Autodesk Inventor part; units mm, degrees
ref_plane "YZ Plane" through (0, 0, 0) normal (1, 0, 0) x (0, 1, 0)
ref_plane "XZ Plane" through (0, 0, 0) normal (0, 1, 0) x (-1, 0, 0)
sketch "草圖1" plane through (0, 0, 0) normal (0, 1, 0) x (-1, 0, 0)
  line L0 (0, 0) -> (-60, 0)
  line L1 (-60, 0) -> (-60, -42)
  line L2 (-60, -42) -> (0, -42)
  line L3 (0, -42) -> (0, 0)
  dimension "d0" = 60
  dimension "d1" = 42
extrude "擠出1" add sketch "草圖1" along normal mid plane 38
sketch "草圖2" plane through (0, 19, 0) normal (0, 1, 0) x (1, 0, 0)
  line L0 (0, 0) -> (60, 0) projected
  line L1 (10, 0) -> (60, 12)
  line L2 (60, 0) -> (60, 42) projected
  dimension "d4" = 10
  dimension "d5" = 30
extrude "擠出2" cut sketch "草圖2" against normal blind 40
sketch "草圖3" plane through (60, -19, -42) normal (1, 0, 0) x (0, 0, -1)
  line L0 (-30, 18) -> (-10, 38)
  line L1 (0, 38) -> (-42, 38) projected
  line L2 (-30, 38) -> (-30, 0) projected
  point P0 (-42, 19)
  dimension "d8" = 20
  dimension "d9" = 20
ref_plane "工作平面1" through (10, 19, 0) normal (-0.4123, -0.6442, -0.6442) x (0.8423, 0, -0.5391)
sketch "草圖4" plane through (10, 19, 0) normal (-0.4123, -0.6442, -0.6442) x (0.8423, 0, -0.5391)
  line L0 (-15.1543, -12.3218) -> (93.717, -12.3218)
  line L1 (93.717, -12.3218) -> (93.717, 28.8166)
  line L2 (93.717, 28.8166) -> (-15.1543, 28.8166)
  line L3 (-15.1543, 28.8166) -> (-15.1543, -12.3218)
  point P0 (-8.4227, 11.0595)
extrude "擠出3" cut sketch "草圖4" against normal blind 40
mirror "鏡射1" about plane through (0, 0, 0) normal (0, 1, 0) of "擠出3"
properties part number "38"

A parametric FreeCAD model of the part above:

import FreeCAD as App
import Part
import Sketcher

V = App.Vector

doc = App.newDocument("Part")
params = doc.addObject("Spreadsheet::Sheet", "Params")
for row, (alias, value) in enumerate([
    ("sketch1_width", "60 mm"),
    ("sketch1_height", "42 mm"),
    ("pad1_length", "38 mm"),
    ("sketch2_width", "50 mm"),
    ("sketch2_height", "12 mm"),
    ("pocket1_length", "40 mm"),
    ("pocket2_length", "40 mm"),
], start=1):
    params.set(f"A{row}", alias)
    params.set(f"B{row}", "=" + value)
    params.setAlias(f"B{row}", alias)

body = doc.addObject("PartDesign::Body", "Body")

sketch1 = doc.addObject("Sketcher::SketchObject", "Sketch")
body.addObject(sketch1)
sketch1.AttachmentSupport = (doc.XZ_Plane, [""])
sketch1.MapMode = "FlatFace"
sketch1.addGeometry(Part.LineSegment(V(0, -42, 0), V(0, 0, 0)), False)
sketch1.addGeometry(Part.LineSegment(V(0, 0, 0), V(60, 0, 0)), False)
sketch1.addGeometry(Part.LineSegment(V(60, 0, 0), V(60, -42, 0)), False)
sketch1.addGeometry(Part.LineSegment(V(60, -42, 0), V(0, -42, 0)), False)
sketch1.addConstraint(Sketcher.Constraint("Coincident", 0, 2, 1, 1))
sketch1.addConstraint(Sketcher.Constraint("Coincident", 1, 2, 2, 1))
sketch1.addConstraint(Sketcher.Constraint("Coincident", 2, 2, 3, 1))
sketch1.addConstraint(Sketcher.Constraint("Coincident", 3, 2, 0, 1))
sketch1.addConstraint(Sketcher.Constraint("Vertical", 0))
sketch1.addConstraint(Sketcher.Constraint("Horizontal", 1))
sketch1.addConstraint(Sketcher.Constraint("Vertical", 2))
sketch1.addConstraint(Sketcher.Constraint("Horizontal", 3))
sketch1.addConstraint(Sketcher.Constraint("Coincident", 0, 2, -1, 1))
sketch1.addConstraint(Sketcher.Constraint("DistanceX", 1, 1, 1, 2, 60.0))
sketch1.addConstraint(Sketcher.Constraint("DistanceY", 0, 1, 0, 2, 42.0))
sketch1.setExpression("Constraints[9]", "Params.sketch1_width")
sketch1.setExpression("Constraints[10]", "Params.sketch1_height")
pad1 = doc.addObject("PartDesign::Pad", "Pad")
body.addObject(pad1)
pad1.Profile = sketch1
pad1.setExpression("Length", "Params.pad1_length")
pad1.Midplane = True

sketch2 = doc.addObject("Sketcher::SketchObject", "Sketch001")
body.addObject(sketch2)
sketch2.AttachmentSupport = (doc.XZ_Plane, [""])
sketch2.MapMode = "FlatFace"
sketch2.AttachmentOffset = App.Placement(V(0, 0, -19), App.Rotation())
sketch2.addGeometry(Part.LineSegment(V(60, -12, 0), V(10, 0, 0)), False)
sketch2.addGeometry(Part.LineSegment(V(10, 0, 0), V(60, 0, 0)), False)
sketch2.addGeometry(Part.LineSegment(V(60, 0, 0), V(60, -12, 0)), False)
sketch2.addConstraint(Sketcher.Constraint("Coincident", 0, 2, 1, 1))
sketch2.addConstraint(Sketcher.Constraint("Coincident", 1, 2, 2, 1))
sketch2.addConstraint(Sketcher.Constraint("Coincident", 2, 2, 0, 1))
sketch2.addConstraint(Sketcher.Constraint("Horizontal", 1))
sketch2.addConstraint(Sketcher.Constraint("Vertical", 2))
sketch2.addConstraint(Sketcher.Constraint("PointOnObject", 0, 2, -1))
sketch2.addConstraint(Sketcher.Constraint("DistanceX", -1, 1, 0, 2, 10.0))
sketch2.addConstraint(Sketcher.Constraint("DistanceX", 1, 1, 1, 2, 50.0))
sketch2.addConstraint(Sketcher.Constraint("DistanceY", 2, 2, 2, 1, 12.0))
sketch2.setExpression("Constraints[7]", "Params.sketch2_width")
sketch2.setExpression("Constraints[8]", "Params.sketch2_height")
pocket1 = doc.addObject("PartDesign::Pocket", "Pocket")
body.addObject(pocket1)
pocket1.Profile = sketch2
pocket1.setExpression("Length", "Params.pocket1_length")
pocket1.Reversed = True

sketch3 = doc.addObject("Sketcher::SketchObject", "Sketch002")
body.addObject(sketch3)
sketch3.Placement = App.Placement(V(10, 19, 0), App.Rotation(V(0.842261958, 0.000005108, -0.539068451), V(0.347274908, -0.764851271, 0.542588861), V(-0.412304418, -0.644206903, -0.644206903), "ZXY"))
sketch3.addGeometry(Part.LineSegment(V(-15, 29, 0), V(-15, -12, 0)), False)
sketch3.addGeometry(Part.LineSegment(V(-15, -12, 0), V(94, -12, 0)), False)
sketch3.addGeometry(Part.LineSegment(V(94, -12, 0), V(94, 29, 0)), False)
sketch3.addGeometry(Part.LineSegment(V(94, 29, 0), V(-15, 29, 0)), False)
sketch3.addConstraint(Sketcher.Constraint("Coincident", 0, 2, 1, 1))
sketch3.addConstraint(Sketcher.Constraint("Coincident", 1, 2, 2, 1))
sketch3.addConstraint(Sketcher.Constraint("Coincident", 2, 2, 3, 1))
sketch3.addConstraint(Sketcher.Constraint("Coincident", 3, 2, 0, 1))
sketch3.addConstraint(Sketcher.Constraint("Vertical", 0))
sketch3.addConstraint(Sketcher.Constraint("Horizontal", 1))
sketch3.addConstraint(Sketcher.Constraint("Vertical", 2))
sketch3.addConstraint(Sketcher.Constraint("Horizontal", 3))
sketch3.addConstraint(Sketcher.Constraint("DistanceX", 1, 1, 1, 2, 108.8713))
sketch3.addConstraint(Sketcher.Constraint("DistanceY", 0, 2, 0, 1, 41.1384))
sketch3.addConstraint(Sketcher.Constraint("DistanceX", -1, 1, 1, 2, 93.717))
sketch3.addConstraint(Sketcher.Constraint("DistanceY", 0, 2, -1, 1, 12.3218))
pocket2 = doc.addObject("PartDesign::Pocket", "Pocket001")
body.addObject(pocket2)
pocket2.Profile = sketch3
pocket2.setExpression("Length", "Params.pocket2_length")
doc.recompute()

mirrored = doc.addObject("PartDesign::Mirrored", "Mirrored")
body.addObject(mirrored)
mirrored.Originals = [pocket2]
mirrored.MirrorPlane = (doc.XZ_Plane, [""])
body.Tip = mirrored

doc.recompute()
